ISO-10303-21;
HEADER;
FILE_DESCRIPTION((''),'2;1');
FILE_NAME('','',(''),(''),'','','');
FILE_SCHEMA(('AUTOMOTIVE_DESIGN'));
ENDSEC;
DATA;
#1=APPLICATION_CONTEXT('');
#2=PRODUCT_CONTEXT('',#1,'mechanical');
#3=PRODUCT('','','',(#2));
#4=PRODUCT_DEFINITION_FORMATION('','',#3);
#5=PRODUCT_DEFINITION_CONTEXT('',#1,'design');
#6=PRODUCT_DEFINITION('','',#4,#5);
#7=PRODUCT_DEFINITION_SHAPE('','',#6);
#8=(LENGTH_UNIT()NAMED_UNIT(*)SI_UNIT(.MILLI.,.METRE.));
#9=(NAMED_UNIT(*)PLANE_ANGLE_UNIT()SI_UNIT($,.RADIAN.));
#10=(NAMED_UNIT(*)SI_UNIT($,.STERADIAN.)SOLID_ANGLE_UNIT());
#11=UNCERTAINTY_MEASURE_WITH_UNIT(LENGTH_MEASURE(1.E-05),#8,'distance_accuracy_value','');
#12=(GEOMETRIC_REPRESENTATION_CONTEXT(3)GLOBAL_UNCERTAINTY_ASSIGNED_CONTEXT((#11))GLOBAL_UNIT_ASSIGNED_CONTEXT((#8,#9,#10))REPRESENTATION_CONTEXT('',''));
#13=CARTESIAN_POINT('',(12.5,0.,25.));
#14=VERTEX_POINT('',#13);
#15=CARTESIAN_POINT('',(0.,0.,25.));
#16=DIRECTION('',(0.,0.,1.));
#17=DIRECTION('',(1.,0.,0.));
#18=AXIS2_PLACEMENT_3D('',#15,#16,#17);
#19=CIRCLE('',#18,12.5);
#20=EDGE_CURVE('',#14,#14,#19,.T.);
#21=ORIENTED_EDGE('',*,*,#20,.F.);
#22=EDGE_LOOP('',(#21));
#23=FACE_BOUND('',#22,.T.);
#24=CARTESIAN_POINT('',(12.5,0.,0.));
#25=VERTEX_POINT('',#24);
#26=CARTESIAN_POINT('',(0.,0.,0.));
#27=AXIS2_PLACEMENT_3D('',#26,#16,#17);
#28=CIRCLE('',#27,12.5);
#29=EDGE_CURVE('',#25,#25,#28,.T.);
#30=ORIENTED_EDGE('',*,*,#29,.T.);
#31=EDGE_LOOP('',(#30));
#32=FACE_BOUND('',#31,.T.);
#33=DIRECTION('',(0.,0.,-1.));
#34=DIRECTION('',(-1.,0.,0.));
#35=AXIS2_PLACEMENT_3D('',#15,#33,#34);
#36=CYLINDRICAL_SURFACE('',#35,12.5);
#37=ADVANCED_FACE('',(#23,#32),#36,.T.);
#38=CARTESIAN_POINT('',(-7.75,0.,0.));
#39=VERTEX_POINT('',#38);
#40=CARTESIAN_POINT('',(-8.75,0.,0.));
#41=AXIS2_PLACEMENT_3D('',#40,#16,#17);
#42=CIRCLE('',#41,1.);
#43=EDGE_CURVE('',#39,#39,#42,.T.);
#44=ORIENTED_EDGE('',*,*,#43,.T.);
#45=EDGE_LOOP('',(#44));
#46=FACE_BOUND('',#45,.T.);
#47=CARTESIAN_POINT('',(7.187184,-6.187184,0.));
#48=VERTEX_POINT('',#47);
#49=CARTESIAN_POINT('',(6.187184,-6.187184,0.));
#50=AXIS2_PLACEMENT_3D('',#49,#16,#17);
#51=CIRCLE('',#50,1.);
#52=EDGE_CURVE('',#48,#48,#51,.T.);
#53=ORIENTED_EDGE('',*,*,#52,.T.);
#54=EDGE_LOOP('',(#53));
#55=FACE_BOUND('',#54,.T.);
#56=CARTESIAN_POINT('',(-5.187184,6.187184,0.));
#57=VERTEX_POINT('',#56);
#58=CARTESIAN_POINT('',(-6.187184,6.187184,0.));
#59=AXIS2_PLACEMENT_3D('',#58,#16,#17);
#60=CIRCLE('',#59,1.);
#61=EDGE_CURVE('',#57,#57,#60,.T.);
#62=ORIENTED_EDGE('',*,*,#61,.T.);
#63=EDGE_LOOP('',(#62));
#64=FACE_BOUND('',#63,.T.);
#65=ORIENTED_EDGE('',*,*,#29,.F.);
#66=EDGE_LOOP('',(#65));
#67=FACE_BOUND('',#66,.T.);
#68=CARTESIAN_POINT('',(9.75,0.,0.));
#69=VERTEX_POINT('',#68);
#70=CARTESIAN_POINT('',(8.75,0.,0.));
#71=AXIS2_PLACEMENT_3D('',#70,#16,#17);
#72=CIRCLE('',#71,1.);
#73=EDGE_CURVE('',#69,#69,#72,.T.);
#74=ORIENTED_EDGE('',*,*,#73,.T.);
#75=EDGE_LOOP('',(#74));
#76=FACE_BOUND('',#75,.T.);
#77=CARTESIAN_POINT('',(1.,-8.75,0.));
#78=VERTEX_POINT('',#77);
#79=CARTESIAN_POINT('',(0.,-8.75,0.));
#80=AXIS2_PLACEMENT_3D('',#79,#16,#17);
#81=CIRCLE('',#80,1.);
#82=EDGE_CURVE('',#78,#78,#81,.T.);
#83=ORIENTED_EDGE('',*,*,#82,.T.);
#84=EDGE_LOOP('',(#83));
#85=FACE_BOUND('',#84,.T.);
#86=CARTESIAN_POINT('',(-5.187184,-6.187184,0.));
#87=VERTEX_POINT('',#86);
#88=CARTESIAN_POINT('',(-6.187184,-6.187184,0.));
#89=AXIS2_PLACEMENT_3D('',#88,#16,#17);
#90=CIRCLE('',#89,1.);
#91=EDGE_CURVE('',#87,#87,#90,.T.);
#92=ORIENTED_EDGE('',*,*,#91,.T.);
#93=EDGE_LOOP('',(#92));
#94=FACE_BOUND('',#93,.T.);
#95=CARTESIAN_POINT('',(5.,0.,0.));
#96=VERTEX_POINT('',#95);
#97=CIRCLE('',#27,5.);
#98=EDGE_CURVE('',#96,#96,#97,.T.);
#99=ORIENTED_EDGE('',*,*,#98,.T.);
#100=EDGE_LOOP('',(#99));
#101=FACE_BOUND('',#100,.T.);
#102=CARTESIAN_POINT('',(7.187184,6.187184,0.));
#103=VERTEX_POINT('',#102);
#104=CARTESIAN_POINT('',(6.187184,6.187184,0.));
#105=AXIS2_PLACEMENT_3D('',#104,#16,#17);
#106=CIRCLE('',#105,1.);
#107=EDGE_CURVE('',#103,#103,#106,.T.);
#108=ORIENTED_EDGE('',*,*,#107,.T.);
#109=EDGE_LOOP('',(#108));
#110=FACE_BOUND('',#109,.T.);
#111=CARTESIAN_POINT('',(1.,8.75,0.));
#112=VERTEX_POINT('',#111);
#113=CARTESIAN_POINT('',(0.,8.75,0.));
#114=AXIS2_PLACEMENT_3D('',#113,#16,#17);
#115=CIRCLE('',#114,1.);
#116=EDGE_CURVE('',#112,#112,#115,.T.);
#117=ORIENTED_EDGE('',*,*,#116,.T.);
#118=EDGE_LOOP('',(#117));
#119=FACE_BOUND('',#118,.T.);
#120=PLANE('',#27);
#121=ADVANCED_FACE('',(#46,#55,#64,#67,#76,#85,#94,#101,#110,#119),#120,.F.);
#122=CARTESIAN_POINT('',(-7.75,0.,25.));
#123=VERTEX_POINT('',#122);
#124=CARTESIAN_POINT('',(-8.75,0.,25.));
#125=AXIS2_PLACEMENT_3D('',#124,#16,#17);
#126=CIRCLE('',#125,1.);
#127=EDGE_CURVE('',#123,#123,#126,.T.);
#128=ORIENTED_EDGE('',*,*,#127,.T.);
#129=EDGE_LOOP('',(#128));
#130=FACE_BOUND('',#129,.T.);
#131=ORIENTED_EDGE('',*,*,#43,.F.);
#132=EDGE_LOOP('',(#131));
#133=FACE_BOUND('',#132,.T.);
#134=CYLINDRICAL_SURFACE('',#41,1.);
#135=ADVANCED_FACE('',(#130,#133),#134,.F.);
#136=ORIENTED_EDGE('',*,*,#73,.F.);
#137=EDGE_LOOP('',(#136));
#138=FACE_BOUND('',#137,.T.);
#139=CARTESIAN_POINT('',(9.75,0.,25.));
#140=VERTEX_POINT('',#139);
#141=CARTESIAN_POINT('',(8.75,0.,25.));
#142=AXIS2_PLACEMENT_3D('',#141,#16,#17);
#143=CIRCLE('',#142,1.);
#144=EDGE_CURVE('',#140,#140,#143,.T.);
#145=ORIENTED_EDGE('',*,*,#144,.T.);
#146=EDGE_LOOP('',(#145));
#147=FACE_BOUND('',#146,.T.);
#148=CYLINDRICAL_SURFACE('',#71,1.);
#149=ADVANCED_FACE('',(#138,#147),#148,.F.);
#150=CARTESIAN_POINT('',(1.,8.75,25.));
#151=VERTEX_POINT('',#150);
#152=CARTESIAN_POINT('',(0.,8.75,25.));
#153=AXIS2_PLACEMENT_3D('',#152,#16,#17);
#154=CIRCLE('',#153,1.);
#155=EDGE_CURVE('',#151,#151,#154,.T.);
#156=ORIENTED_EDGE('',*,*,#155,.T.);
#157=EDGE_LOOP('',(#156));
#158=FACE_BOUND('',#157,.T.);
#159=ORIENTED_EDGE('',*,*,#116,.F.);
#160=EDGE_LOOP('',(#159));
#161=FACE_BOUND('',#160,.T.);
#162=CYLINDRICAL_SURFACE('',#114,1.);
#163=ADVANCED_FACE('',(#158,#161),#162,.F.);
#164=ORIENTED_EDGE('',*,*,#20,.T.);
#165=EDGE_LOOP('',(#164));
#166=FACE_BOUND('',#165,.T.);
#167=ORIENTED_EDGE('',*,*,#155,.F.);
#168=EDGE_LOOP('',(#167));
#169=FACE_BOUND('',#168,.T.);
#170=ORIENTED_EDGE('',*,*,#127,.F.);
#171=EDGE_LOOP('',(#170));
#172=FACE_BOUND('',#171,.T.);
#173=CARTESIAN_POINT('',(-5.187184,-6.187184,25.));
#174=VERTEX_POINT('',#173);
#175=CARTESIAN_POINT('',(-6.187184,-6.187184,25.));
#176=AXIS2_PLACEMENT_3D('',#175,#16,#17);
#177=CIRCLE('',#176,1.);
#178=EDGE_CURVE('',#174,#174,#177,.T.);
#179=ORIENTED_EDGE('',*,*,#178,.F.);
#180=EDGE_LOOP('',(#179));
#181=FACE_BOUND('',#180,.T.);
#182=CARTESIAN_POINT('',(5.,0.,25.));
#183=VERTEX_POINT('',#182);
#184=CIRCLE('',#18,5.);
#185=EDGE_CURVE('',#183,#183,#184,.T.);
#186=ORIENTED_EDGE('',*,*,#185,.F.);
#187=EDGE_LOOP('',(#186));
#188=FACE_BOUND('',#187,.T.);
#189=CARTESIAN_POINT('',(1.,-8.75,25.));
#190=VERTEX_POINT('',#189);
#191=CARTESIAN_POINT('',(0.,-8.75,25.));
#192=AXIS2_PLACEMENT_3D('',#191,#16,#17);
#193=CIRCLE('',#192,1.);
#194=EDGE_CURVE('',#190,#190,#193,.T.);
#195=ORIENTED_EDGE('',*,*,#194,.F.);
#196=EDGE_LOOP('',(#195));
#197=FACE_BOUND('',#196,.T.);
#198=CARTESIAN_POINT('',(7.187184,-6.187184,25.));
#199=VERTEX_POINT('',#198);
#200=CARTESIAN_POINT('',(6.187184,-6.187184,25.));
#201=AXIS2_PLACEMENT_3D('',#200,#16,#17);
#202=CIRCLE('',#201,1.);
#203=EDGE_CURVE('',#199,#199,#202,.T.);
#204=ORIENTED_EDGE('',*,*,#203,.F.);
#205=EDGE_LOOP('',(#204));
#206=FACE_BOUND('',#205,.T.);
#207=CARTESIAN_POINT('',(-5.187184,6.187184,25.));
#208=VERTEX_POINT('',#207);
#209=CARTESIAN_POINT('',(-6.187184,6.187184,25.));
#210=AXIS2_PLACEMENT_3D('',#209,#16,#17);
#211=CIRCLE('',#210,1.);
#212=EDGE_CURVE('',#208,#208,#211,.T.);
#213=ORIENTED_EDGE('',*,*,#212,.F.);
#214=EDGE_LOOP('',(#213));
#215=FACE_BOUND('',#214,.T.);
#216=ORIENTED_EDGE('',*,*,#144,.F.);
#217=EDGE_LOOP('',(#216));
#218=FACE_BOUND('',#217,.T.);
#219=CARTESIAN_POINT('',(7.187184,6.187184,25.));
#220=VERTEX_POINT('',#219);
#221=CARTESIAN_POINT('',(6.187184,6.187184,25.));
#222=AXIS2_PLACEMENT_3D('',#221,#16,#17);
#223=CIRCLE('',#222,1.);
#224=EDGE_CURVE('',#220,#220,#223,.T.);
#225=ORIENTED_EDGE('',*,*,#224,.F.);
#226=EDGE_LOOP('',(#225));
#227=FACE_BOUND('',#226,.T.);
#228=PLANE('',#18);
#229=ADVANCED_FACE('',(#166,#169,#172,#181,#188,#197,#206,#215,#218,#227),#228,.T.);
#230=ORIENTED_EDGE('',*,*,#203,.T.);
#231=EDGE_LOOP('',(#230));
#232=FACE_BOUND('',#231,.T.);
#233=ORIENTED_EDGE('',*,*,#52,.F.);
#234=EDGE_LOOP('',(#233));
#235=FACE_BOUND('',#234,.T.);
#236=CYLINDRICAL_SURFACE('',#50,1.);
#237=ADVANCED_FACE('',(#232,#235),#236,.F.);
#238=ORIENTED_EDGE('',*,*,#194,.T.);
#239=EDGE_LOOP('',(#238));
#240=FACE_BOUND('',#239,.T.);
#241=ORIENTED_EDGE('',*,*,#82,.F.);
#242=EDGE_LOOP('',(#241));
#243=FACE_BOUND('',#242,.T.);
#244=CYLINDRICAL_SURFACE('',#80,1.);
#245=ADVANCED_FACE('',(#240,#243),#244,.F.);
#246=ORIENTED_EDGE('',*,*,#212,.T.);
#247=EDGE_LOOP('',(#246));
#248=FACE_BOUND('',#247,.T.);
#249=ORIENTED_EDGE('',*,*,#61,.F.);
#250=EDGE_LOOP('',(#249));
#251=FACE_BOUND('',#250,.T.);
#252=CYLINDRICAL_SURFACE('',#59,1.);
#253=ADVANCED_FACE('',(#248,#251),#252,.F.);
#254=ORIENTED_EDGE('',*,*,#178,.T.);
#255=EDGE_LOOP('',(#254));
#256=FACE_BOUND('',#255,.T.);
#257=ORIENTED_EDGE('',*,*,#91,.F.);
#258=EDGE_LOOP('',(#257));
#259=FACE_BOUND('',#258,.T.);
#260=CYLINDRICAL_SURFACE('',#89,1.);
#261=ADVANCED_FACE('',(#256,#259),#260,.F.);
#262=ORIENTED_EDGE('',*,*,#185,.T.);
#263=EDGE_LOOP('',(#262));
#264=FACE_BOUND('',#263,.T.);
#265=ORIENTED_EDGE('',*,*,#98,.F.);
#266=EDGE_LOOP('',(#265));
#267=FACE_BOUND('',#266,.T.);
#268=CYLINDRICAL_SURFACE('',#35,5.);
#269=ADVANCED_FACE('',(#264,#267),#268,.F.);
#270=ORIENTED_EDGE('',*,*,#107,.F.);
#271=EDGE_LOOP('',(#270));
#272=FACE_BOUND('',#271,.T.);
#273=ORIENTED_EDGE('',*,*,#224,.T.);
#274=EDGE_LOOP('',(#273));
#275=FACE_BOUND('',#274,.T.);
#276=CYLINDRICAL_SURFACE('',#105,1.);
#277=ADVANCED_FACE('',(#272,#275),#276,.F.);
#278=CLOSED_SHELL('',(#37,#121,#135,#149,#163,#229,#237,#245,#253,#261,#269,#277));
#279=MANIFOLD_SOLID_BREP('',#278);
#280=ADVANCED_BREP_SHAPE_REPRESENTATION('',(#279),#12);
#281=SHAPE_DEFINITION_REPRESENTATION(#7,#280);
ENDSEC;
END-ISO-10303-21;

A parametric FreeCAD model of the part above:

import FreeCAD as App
import Part
import Sketcher

V = App.Vector

doc = App.newDocument("Part")
body = doc.addObject("PartDesign::Body", "Body")

# Sketch on XY plane
sketch1 = body.newObject("Sketcher::SketchObject", "Sketch")
sketch1.AttachmentSupport = (doc.getObject("XY_Plane"), [""])
sketch1.MapMode = "FlatFace"
sketch1.addGeometry([
    Part.Circle(V(0, 0, 0), V(0, 0, 1), 12),
    Part.Circle(V(0, 0, 0), V(0, 0, 1), 5),
], False)
sketch1.addConstraint([
    Sketcher.Constraint("Coincident", 0, 3, -1, 1),
    Sketcher.Constraint("Coincident", 1, 3, -1, 1),
    Sketcher.Constraint("Diameter", 0, 25.0),
    Sketcher.Constraint("Diameter", 1, 10.0),
])
pad1 = body.newObject("PartDesign::Pad", "Pad")
pad1.Profile = sketch1
pad1.Length = 25

# Sketch on XY plane
sketch2 = body.newObject("Sketcher::SketchObject", "Sketch001")
sketch2.AttachmentSupport = (doc.getObject("XY_Plane"), [""])
sketch2.MapMode = "FlatFace"
sketch2.AttachmentOffset = App.Placement(V(0, 0, 25), App.Rotation())
sketch2.addGeometry([
    Part.Circle(V(0, 8.8, 0), V(0, 0, 1), 1),  # 0
    Part.Circle(V(6.2, 6.2, 0), V(0, 0, 1), 1),  # 1
    Part.Circle(V(8.8, 0, 0), V(0, 0, 1), 1),  # 2
    Part.Circle(V(6.2, -6.2, 0), V(0, 0, 1), 1),  # 3
    Part.Circle(V(0, -8.8, 0), V(0, 0, 1), 1),  # 4
    Part.Circle(V(-6.2, -6.2, 0), V(0, 0, 1), 1),  # 5
    Part.Circle(V(-8.8, 0, 0), V(0, 0, 1), 1),  # 6
    Part.Circle(V(-6.2, 6.2, 0), V(0, 0, 1), 1),  # 7
], False)
sketch2.addConstraint([
    Sketcher.Constraint("Equal", 0, 1),
    Sketcher.Constraint("Equal", 1, 2),
    Sketcher.Constraint("Equal", 2, 3),
    Sketcher.Constraint("Equal", 3, 4),
    Sketcher.Constraint("Equal", 4, 5),
    Sketcher.Constraint("Equal", 5, 6),
    Sketcher.Constraint("Equal", 6, 7),
    Sketcher.Constraint("Symmetric", 0, 3, 4, 3, -1, 1),
    Sketcher.Constraint("Symmetric", 1, 3, 5, 3, -1, 1),
    Sketcher.Constraint("Symmetric", 2, 3, 6, 3, -1, 1),
    Sketcher.Constraint("Symmetric", 3, 3, 7, 3, -1, 1),
    Sketcher.Constraint("Symmetric", 3, 3, 5, 3, -2),
    Sketcher.Constraint("PointOnObject", 0, 3, -2),
    Sketcher.Constraint("PointOnObject", 2, 3, -1),
    Sketcher.Constraint("Diameter", 0, 2.0),
    Sketcher.Constraint("DistanceY", 4, 3, 0, 3, 17.5),
    Sketcher.Constraint("DistanceX", -1, 1, 2, 3, 8.75),
    Sketcher.Constraint("DistanceY", 3, 3, 1, 3, 12.374369),
    Sketcher.Constraint("DistanceX", 5, 3, 3, 3, 12.374369),
])
pocket1 = body.newObject("PartDesign::Pocket", "Pocket")
pocket1.Profile = sketch2
pocket1.Length = 25

doc.recompute()
